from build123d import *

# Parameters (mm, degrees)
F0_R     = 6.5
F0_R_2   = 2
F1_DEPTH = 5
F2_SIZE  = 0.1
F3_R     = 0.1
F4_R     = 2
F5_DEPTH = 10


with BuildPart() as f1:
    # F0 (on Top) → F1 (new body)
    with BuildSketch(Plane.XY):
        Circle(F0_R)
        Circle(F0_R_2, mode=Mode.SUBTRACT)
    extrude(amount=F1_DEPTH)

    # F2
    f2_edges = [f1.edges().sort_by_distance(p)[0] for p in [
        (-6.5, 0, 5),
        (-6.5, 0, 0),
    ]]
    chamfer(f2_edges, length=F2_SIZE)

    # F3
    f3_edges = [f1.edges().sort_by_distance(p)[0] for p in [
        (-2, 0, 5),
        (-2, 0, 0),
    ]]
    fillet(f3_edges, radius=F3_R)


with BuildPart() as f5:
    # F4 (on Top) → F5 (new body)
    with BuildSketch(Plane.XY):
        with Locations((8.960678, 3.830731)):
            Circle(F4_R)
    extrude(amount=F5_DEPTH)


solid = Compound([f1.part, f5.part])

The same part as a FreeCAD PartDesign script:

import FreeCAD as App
import Part
import Sketcher

V = App.Vector
Q = App.Units.Quantity


def edges_at(feature, points):
    """Names of the edges that pass closest to the given points."""
    edges = feature.Shape.Edges
    near = lambda p: min(range(len(edges)), key=lambda i: edges[i].distToShape(Part.Vertex(*p))[0])
    return sorted({f"Edge{near(p) + 1}" for p in points})

doc = App.newDocument("Part")
body = doc.addObject("PartDesign::Body", "Body")

# Sketch on XY plane
sketch1 = doc.addObject("Sketcher::SketchObject", "Sketch")
body.addObject(sketch1)
sketch1.AttachmentSupport = (doc.XY_Plane, [""])
sketch1.MapMode = "FlatFace"
sketch1.addGeometry(Part.Circle(V(0, 0, 0), V(0, 0, 1), 6.5), False)
sketch1.addGeometry(Part.Circle(V(0, 0, 0), V(0, 0, 1), 2), False)
sketch1.addConstraint(Sketcher.Constraint("Coincident", 0, 3, -1, 1))
sketch1.addConstraint(Sketcher.Constraint("Coincident", 1, 3, -1, 1))
sketch1.addConstraint(Sketcher.Constraint("Diameter", 0, Q("13 mm")))
sketch1.addConstraint(Sketcher.Constraint("Diameter", 1, Q("4 mm")))
pad1 = doc.addObject("PartDesign::Pad", "Pad")
body.addObject(pad1)
pad1.Profile = sketch1
pad1.Length = 5
doc.recompute()

chamfer = doc.addObject("PartDesign::Chamfer", "Chamfer")
body.addObject(chamfer)
chamfer.Base = (pad1, edges_at(pad1, [(-6.5, 0, 5), (-6.5, 0, 0)]))
chamfer.Size = 0.1
doc.recompute()

fillet = doc.addObject("PartDesign::Fillet", "Fillet")
body.addObject(fillet)
fillet.Base = (chamfer, edges_at(chamfer, [(-2, 0, 5), (-2, 0, 0)]))
fillet.Radius = 0.1
body2 = doc.addObject("PartDesign::Body", "Body001")

# Sketch on XY plane
sketch2 = doc.addObject("Sketcher::SketchObject", "Sketch001")
body2.addObject(sketch2)
sketch2.AttachmentSupport = (doc.getObject("XY_Plane001"), [""])
sketch2.MapMode = "FlatFace"
sketch2.addGeometry(Part.Circle(V(9, 3.8, 0), V(0, 0, 1), 2), False)
sketch2.addConstraint(Sketcher.Constraint("Diameter", 0, Q("4 mm")))
sketch2.addConstraint(Sketcher.Constraint("DistanceY", -1, 1, 0, 3, Q("3.830731 mm")))
sketch2.addConstraint(Sketcher.Constraint("DistanceX", -1, 1, 0, 3, Q("8.960678 mm")))
pad2 = doc.addObject("PartDesign::Pad", "Pad001")
body2.addObject(pad2)
pad2.Profile = sketch2
pad2.Length = 10

doc.recompute()
